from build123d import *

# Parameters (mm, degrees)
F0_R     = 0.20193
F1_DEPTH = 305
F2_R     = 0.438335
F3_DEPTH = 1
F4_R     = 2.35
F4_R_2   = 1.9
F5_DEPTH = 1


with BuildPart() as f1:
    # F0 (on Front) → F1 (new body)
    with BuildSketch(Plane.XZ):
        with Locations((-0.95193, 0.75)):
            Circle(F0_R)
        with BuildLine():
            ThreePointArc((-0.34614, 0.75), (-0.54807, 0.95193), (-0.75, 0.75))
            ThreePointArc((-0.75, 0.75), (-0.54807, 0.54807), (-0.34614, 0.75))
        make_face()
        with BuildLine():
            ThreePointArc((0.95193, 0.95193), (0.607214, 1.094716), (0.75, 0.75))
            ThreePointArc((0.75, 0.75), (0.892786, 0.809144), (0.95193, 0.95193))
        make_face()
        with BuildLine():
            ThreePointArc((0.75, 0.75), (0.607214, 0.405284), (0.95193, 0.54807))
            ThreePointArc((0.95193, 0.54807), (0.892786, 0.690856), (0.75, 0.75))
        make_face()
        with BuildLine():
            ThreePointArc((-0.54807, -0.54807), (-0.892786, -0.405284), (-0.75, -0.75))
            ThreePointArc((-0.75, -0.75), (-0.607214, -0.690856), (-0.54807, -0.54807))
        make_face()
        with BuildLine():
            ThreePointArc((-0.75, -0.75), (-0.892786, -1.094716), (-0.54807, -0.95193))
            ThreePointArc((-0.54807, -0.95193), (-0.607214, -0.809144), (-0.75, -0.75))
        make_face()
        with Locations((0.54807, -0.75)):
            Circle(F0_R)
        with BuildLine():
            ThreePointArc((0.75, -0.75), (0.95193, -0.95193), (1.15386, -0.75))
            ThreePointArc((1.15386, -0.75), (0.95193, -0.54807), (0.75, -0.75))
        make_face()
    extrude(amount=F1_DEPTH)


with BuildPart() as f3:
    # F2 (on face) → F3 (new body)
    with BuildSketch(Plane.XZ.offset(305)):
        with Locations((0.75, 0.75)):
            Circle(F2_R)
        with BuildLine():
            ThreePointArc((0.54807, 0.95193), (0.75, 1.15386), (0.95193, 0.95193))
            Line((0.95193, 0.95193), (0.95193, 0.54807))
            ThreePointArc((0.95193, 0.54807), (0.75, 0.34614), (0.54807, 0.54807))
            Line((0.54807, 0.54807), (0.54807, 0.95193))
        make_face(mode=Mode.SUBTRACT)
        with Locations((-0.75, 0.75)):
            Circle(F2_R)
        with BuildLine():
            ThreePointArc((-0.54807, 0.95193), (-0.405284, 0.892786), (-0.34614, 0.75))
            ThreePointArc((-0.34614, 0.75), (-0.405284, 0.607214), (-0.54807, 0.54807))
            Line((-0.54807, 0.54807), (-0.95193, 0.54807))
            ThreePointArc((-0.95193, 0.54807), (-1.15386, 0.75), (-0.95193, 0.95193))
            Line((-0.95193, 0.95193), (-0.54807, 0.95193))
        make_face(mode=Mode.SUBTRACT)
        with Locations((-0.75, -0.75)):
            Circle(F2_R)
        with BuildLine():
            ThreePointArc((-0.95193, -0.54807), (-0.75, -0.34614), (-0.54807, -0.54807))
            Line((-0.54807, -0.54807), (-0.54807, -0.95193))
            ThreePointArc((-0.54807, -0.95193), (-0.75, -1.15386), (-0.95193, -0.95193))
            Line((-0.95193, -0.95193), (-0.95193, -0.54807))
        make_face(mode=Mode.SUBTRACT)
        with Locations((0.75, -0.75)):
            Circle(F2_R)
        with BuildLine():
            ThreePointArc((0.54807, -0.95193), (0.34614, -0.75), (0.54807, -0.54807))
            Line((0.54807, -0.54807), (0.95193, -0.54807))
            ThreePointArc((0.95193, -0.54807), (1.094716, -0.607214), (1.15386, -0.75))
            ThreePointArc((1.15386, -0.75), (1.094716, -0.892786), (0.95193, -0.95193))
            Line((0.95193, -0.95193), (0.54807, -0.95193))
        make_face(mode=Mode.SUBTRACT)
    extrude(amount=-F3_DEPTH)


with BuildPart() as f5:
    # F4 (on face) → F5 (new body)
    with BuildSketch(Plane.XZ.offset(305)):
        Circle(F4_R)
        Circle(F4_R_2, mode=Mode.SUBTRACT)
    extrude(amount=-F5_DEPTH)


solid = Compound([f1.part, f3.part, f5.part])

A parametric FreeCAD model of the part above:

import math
import FreeCAD as App
import Part
import Sketcher

doc = App.newDocument("Part")
body = doc.addObject("PartDesign::Body", "Body")
body.AllowCompound = True

# Sketch on XZ plane
sketch1 = body.newObject("Sketcher::SketchObject", "Sketch")
sketch1.AttachmentSupport = (doc.getObject("XZ_Plane"), [""])
sketch1.MapMode = "FlatFace"
sketch1.addGeometry(Part.Circle(App.Vector(-0.95, 0.75, 0), App.Vector(0, 0, 1), 0.2), False)
sketch1.addGeometry(Part.Circle(App.Vector(-0.55, 0.75, 0), App.Vector(0, 0, 1), 0.2), False)
sketch1.addGeometry(Part.ArcOfCircle(Part.Circle(App.Vector(0.75, 0.95, 0), App.Vector(0, 0, 1), 0.2), math.radians(0), math.radians(270)), False)
sketch1.addGeometry(Part.ArcOfCircle(Part.Circle(App.Vector(0.75, 0.95, 0), App.Vector(0, 0, 1), 0.2), math.radians(-90), math.radians(0)), False)
sketch1.addGeometry(Part.ArcOfCircle(Part.Circle(App.Vector(0.75, 0.55, 0), App.Vector(0, 0, 1), 0.2), math.radians(90), math.radians(360)), False)
sketch1.addGeometry(Part.ArcOfCircle(Part.Circle(App.Vector(0.75, 0.55, 0), App.Vector(0, 0, 1), 0.2), math.radians(0), math.radians(90)), False)
sketch1.addGeometry(Part.ArcOfCircle(Part.Circle(App.Vector(-0.75, -0.55, 0), App.Vector(0, 0, 1), 0.2), math.radians(0), math.radians(270)), False)
sketch1.addGeometry(Part.ArcOfCircle(Part.Circle(App.Vector(-0.75, -0.55, 0), App.Vector(0, 0, 1), 0.2), math.radians(-90), math.radians(0)), False)
sketch1.addGeometry(Part.ArcOfCircle(Part.Circle(App.Vector(-0.75, -0.95, 0), App.Vector(0, 0, 1), 0.2), math.radians(90), math.radians(360)), False)
sketch1.addGeometry(Part.ArcOfCircle(Part.Circle(App.Vector(-0.75, -0.95, 0), App.Vector(0, 0, 1), 0.2), math.radians(0), math.radians(90)), False)
sketch1.addGeometry(Part.Circle(App.Vector(0.55, -0.75, 0), App.Vector(0, 0, 1), 0.2), False)
sketch1.addGeometry(Part.Circle(App.Vector(0.95, -0.75, 0), App.Vector(0, 0, 1), 0.2), False)
sketch1.addConstraint(Sketcher.Constraint("Tangent", 2, 1, 3, 2))
sketch1.addConstraint(Sketcher.Constraint("Coincident", 3, 1, 2, 2))
sketch1.addConstraint(Sketcher.Constraint("Tangent", 4, 1, 5, 2))
sketch1.addConstraint(Sketcher.Constraint("Coincident", 5, 1, 4, 2))
sketch1.addConstraint(Sketcher.Constraint("Tangent", 6, 1, 7, 2))
sketch1.addConstraint(Sketcher.Constraint("Coincident", 7, 1, 6, 2))
sketch1.addConstraint(Sketcher.Constraint("Tangent", 8, 1, 9, 2))
sketch1.addConstraint(Sketcher.Constraint("Coincident", 9, 1, 8, 2))
sketch1.addConstraint(Sketcher.Constraint("Coincident", 4, 1, 3, 1))
sketch1.addConstraint(Sketcher.Constraint("Coincident", 8, 1, 7, 1))
sketch1.addConstraint(Sketcher.Constraint("Equal", 0, 1))
sketch1.addConstraint(Sketcher.Constraint("Equal", 1, 2))
sketch1.addConstraint(Sketcher.Constraint("Equal", 3, 4))
sketch1.addConstraint(Sketcher.Constraint("Equal", 5, 6))
sketch1.addConstraint(Sketcher.Constraint("Equal", 7, 8))
sketch1.addConstraint(Sketcher.Constraint("Equal", 9, 10))
sketch1.addConstraint(Sketcher.Constraint("Equal", 10, 11))
sketch1.addConstraint(Sketcher.Constraint("Symmetric", 4, 3, 6, 3, -1, 1))
sketch1.addConstraint(Sketcher.Constraint("Symmetric", 1, 3, 10, 3, -1, 1))
sketch1.addConstraint(Sketcher.Constraint("Symmetric", 0, 3, 11, 3, -1, 1))
sketch1.addConstraint(Sketcher.Constraint("Horizontal", 0, 3, 1, 3))
sketch1.addConstraint(Sketcher.Constraint("Horizontal", 3, 3, 2, 1))
sketch1.addConstraint(Sketcher.Constraint("Horizontal", 1, 3, 3, 1))
sketch1.addConstraint(Sketcher.Constraint("Horizontal", 4, 3, 5, 1))
sketch1.addConstraint(Sketcher.Constraint("Horizontal", 7, 3, 6, 1))
sketch1.addConstraint(Sketcher.Constraint("Horizontal", 8, 3, 9, 1))
sketch1.addConstraint(Sketcher.Constraint("Vertical", 3, 3, 4, 3))
sketch1.addConstraint(Sketcher.Constraint("Vertical", 7, 3, 8, 3))
sketch1.addConstraint(Sketcher.Constraint("Vertical", 11, 3, 2, 1))
sketch1.addConstraint(Sketcher.Constraint("Vertical", 5, 3, 3, 1))
sketch1.addConstraint(Sketcher.Constraint("Vertical", 1, 3, 6, 1))
sketch1.addConstraint(Sketcher.Constraint("Vertical", 9, 3, 7, 1))
sketch1.addConstraint(Sketcher.Constraint("DistanceX", 6, 3, 5, 3, 1.5))
sketch1.addConstraint(Sketcher.Constraint("DistanceY", 6, 3, 2, 3, 1.5))
sketch1.addConstraint(Sketcher.Constraint("Diameter", 0, 0.40386))
pad1 = body.newObject("PartDesign::Pad", "Pad")
pad1.Profile = sketch1
pad1.Length = 305
body2 = doc.addObject("PartDesign::Body", "Body001")
body2.AllowCompound = True

# Sketch on XZ plane
sketch2 = body2.newObject("Sketcher::SketchObject", "Sketch001")
sketch2.AttachmentSupport = (doc.getObject("XZ_Plane001"), [""])
sketch2.MapMode = "FlatFace"
sketch2.AttachmentOffset = App.Placement(App.Vector(0, 0, 305), App.Rotation())
sketch2.addGeometry(Part.Circle(App.Vector(0.75, 0.75, 0), App.Vector(0, 0, 1), 0.44), False)
sketch2.addGeometry(Part.LineSegment(App.Vector(0.55, 0.55, 0), App.Vector(0.55, 0.95, 0)), False)
sketch2.addGeometry(Part.ArcOfCircle(Part.Circle(App.Vector(0.75, 0.95, 0), App.Vector(0, 0, 1), 0.2), math.radians(0), math.radians(180)), False)
sketch2.addGeometry(Part.LineSegment(App.Vector(0.95, 0.95, 0), App.Vector(0.95, 0.55, 0)), False)
sketch2.addGeometry(Part.ArcOfCircle(Part.Circle(App.Vector(0.75, 0.55, 0), App.Vector(0, 0, 1), 0.2), math.radians(180), math.radians(360)), False)
sketch2.addGeometry(Part.Circle(App.Vector(-0.75, 0.75, 0), App.Vector(0, 0, 1), 0.44), False)
sketch2.addGeometry(Part.LineSegment(App.Vector(-0.95, 0.95, 0), App.Vector(-0.55, 0.95, 0)), False)
sketch2.addGeometry(Part.ArcOfCircle(Part.Circle(App.Vector(-0.55, 0.75, 0), App.Vector(0, 0, 1), 0.2), math.radians(0), math.radians(90)), False)
sketch2.addGeometry(Part.ArcOfCircle(Part.Circle(App.Vector(-0.55, 0.75, 0), App.Vector(0, 0, 1), 0.2), math.radians(-90), math.radians(0)), False)
sketch2.addGeometry(Part.LineSegment(App.Vector(-0.55, 0.55, 0), App.Vector(-0.95, 0.55, 0)), False)
sketch2.addGeometry(Part.ArcOfCircle(Part.Circle(App.Vector(-0.95, 0.75, 0), App.Vector(0, 0, 1), 0.2), math.radians(90), math.radians(270)), False)
sketch2.addGeometry(Part.Circle(App.Vector(-0.75, -0.75, 0), App.Vector(0, 0, 1), 0.44), False)
sketch2.addGeometry(Part.LineSegment(App.Vector(-0.95, -0.95, 0), App.Vector(-0.95, -0.55, 0)), False)
sketch2.addGeometry(Part.ArcOfCircle(Part.Circle(App.Vector(-0.75, -0.55, 0), App.Vector(0, 0, 1), 0.2), math.radians(0), math.radians(180)), False)
sketch2.addGeometry(Part.LineSegment(App.Vector(-0.55, -0.55, 0), App.Vector(-0.55, -0.95, 0)), False)
sketch2.addGeometry(Part.ArcOfCircle(Part.Circle(App.Vector(-0.75, -0.95, 0), App.Vector(0, 0, 1), 0.2), math.radians(180), math.radians(360)), False)
sketch2.addGeometry(Part.Circle(App.Vector(0.75, -0.75, 0), App.Vector(0, 0, 1), 0.44), False)
sketch2.addGeometry(Part.LineSegment(App.Vector(0.95, -0.95, 0), App.Vector(0.55, -0.95, 0)), False)
sketch2.addGeometry(Part.ArcOfCircle(Part.Circle(App.Vector(0.55, -0.75, 0), App.Vector(0, 0, 1), 0.2), math.radians(90), math.radians(270)), False)
sketch2.addGeometry(Part.LineSegment(App.Vector(0.55, -0.55, 0), App.Vector(0.95, -0.55, 0)), False)
sketch2.addGeometry(Part.ArcOfCircle(Part.Circle(App.Vector(0.95, -0.75, 0), App.Vector(0, 0, 1), 0.2), math.radians(0), math.radians(90)), False)
sketch2.addGeometry(Part.ArcOfCircle(Part.Circle(App.Vector(0.95, -0.75, 0), App.Vector(0, 0, 1), 0.2), math.radians(-90), math.radians(0)), False)
sketch2.addConstraint(Sketcher.Constraint("Tangent", 1, 2, 2, 2))
sketch2.addConstraint(Sketcher.Constraint("Tangent", 2, 1, 3, 1))
sketch2.addConstraint(Sketcher.Constraint("Tangent", 3, 2, 4, 2))
sketch2.addConstraint(Sketcher.Constraint("Tangent", 4, 1, 1, 1))
sketch2.addConstraint(Sketcher.Constraint("Tangent", 6, 2, 7, 2))
sketch2.addConstraint(Sketcher.Constraint("Coincident", 7, 1, 8, 2))
sketch2.addConstraint(Sketcher.Constraint("Tangent", 8, 1, 9, 1))
sketch2.addConstraint(Sketcher.Constraint("Tangent", 9, 2, 10, 2))
sketch2.addConstraint(Sketcher.Constraint("Tangent", 10, 1, 6, 1))
sketch2.addConstraint(Sketcher.Constraint("Tangent", 12, 2, 13, 2))
sketch2.addConstraint(Sketcher.Constraint("Tangent", 13, 1, 14, 1))
sketch2.addConstraint(Sketcher.Constraint("Tangent", 14, 2, 15, 2))
sketch2.addConstraint(Sketcher.Constraint("Tangent", 15, 1, 12, 1))
sketch2.addConstraint(Sketcher.Constraint("Tangent", 17, 2, 18, 2))
sketch2.addConstraint(Sketcher.Constraint("Tangent", 18, 1, 19, 1))
sketch2.addConstraint(Sketcher.Constraint("Tangent", 19, 2, 20, 2))
sketch2.addConstraint(Sketcher.Constraint("Coincident", 20, 1, 21, 2))
sketch2.addConstraint(Sketcher.Constraint("Tangent", 21, 1, 17, 1))
sketch2.addConstraint(Sketcher.Constraint("Vertical", 1))
sketch2.addConstraint(Sketcher.Constraint("Vertical", 3))
sketch2.addConstraint(Sketcher.Constraint("Horizontal", 6))
sketch2.addConstraint(Sketcher.Constraint("Horizontal", 9))
sketch2.addConstraint(Sketcher.Constraint("Vertical", 12))
sketch2.addConstraint(Sketcher.Constraint("Vertical", 14))
sketch2.addConstraint(Sketcher.Constraint("Horizontal", 17))
sketch2.addConstraint(Sketcher.Constraint("Horizontal", 19))
sketch2.addConstraint(Sketcher.Constraint("Coincident", 8, 3, 7, 3))
sketch2.addConstraint(Sketcher.Constraint("Coincident", 21, 3, 20, 3))
sketch2.addConstraint(Sketcher.Constraint("Equal", 0, 5))
sketch2.addConstraint(Sketcher.Constraint("Equal", 4, 7))
sketch2.addConstraint(Sketcher.Constraint("Equal", 5, 11))
sketch2.addConstraint(Sketcher.Constraint("Equal", 10, 13))
sketch2.addConstraint(Sketcher.Constraint("Equal", 11, 16))
sketch2.addConstraint(Sketcher.Constraint("Equal", 15, 18))
sketch2.addConstraint(Sketcher.Constraint("Symmetric", 0, 3, 11, 3, -1, 1))
sketch2.addConstraint(Sketcher.Constraint("Symmetric", 4, 3, 13, 3, -1, 1))
sketch2.addConstraint(Sketcher.Constraint("Symmetric", 5, 3, 16, 3, -1, 1))
sketch2.addConstraint(Sketcher.Constraint("Symmetric", 7, 3, 18, 3, -1, 1))
sketch2.addConstraint(Sketcher.Constraint("Symmetric", 0, 3, 5, 3, -2))
sketch2.addConstraint(Sketcher.Constraint("Symmetric", 1, 2, 6, 2, -2))
sketch2.addConstraint(Sketcher.Constraint("Symmetric", 3, 2, 9, 2, -2))
sketch2.addConstraint(Sketcher.Constraint("Symmetric", 15, 1, 21, 1, -2))
sketch2.addConstraint(Sketcher.Constraint("Horizontal", 5, 3, 7, 3))
sketch2.addConstraint(Sketcher.Constraint("Horizontal", 10, 3, 7, 1))
sketch2.addConstraint(Sketcher.Constraint("Horizontal", 21, 3, 20, 1))
sketch2.addConstraint(Sketcher.Constraint("Vertical", 0, 3, 2, 3))
sketch2.addConstraint(Sketcher.Constraint("DistanceX", 5, 3, 0, 3, 1.5))
sketch2.addConstraint(Sketcher.Constraint("DistanceY", 11, 3, 5, 3, 1.5))
sketch2.addConstraint(Sketcher.Constraint("Diameter", 0, 0.87667))
sketch2.addConstraint(Sketcher.Constraint("Radius", 2, 0.20193))
pad2 = body2.newObject("PartDesign::Pad", "Pad001")
pad2.Profile = sketch2
pad2.Length = 1
pad2.Reversed = True
body3 = doc.addObject("PartDesign::Body", "Body002")

# Sketch on XZ plane
sketch3 = body3.newObject("Sketcher::SketchObject", "Sketch002")
sketch3.AttachmentSupport = (doc.getObject("XZ_Plane002"), [""])
sketch3.MapMode = "FlatFace"
sketch3.AttachmentOffset = App.Placement(App.Vector(0, 0, 305), App.Rotation())
sketch3.addGeometry(Part.Circle(App.Vector(0, 0, 0), App.Vector(0, 0, 1), 2.4), False)
sketch3.addGeometry(Part.Circle(App.Vector(0, 0, 0), App.Vector(0, 0, 1), 1.9), False)
sketch3.addConstraint(Sketcher.Constraint("Coincident", 0, 3, -1, 1))
sketch3.addConstraint(Sketcher.Constraint("Coincident", 1, 3, -1, 1))
sketch3.addConstraint(Sketcher.Constraint("Diameter", 0, 4.7))
sketch3.addConstraint(Sketcher.Constraint("Diameter", 1, 3.8))
pad3 = body3.newObject("PartDesign::Pad", "Pad002")
pad3.Profile = sketch3
pad3.Length = 1
pad3.Reversed = True

doc.recompute()
